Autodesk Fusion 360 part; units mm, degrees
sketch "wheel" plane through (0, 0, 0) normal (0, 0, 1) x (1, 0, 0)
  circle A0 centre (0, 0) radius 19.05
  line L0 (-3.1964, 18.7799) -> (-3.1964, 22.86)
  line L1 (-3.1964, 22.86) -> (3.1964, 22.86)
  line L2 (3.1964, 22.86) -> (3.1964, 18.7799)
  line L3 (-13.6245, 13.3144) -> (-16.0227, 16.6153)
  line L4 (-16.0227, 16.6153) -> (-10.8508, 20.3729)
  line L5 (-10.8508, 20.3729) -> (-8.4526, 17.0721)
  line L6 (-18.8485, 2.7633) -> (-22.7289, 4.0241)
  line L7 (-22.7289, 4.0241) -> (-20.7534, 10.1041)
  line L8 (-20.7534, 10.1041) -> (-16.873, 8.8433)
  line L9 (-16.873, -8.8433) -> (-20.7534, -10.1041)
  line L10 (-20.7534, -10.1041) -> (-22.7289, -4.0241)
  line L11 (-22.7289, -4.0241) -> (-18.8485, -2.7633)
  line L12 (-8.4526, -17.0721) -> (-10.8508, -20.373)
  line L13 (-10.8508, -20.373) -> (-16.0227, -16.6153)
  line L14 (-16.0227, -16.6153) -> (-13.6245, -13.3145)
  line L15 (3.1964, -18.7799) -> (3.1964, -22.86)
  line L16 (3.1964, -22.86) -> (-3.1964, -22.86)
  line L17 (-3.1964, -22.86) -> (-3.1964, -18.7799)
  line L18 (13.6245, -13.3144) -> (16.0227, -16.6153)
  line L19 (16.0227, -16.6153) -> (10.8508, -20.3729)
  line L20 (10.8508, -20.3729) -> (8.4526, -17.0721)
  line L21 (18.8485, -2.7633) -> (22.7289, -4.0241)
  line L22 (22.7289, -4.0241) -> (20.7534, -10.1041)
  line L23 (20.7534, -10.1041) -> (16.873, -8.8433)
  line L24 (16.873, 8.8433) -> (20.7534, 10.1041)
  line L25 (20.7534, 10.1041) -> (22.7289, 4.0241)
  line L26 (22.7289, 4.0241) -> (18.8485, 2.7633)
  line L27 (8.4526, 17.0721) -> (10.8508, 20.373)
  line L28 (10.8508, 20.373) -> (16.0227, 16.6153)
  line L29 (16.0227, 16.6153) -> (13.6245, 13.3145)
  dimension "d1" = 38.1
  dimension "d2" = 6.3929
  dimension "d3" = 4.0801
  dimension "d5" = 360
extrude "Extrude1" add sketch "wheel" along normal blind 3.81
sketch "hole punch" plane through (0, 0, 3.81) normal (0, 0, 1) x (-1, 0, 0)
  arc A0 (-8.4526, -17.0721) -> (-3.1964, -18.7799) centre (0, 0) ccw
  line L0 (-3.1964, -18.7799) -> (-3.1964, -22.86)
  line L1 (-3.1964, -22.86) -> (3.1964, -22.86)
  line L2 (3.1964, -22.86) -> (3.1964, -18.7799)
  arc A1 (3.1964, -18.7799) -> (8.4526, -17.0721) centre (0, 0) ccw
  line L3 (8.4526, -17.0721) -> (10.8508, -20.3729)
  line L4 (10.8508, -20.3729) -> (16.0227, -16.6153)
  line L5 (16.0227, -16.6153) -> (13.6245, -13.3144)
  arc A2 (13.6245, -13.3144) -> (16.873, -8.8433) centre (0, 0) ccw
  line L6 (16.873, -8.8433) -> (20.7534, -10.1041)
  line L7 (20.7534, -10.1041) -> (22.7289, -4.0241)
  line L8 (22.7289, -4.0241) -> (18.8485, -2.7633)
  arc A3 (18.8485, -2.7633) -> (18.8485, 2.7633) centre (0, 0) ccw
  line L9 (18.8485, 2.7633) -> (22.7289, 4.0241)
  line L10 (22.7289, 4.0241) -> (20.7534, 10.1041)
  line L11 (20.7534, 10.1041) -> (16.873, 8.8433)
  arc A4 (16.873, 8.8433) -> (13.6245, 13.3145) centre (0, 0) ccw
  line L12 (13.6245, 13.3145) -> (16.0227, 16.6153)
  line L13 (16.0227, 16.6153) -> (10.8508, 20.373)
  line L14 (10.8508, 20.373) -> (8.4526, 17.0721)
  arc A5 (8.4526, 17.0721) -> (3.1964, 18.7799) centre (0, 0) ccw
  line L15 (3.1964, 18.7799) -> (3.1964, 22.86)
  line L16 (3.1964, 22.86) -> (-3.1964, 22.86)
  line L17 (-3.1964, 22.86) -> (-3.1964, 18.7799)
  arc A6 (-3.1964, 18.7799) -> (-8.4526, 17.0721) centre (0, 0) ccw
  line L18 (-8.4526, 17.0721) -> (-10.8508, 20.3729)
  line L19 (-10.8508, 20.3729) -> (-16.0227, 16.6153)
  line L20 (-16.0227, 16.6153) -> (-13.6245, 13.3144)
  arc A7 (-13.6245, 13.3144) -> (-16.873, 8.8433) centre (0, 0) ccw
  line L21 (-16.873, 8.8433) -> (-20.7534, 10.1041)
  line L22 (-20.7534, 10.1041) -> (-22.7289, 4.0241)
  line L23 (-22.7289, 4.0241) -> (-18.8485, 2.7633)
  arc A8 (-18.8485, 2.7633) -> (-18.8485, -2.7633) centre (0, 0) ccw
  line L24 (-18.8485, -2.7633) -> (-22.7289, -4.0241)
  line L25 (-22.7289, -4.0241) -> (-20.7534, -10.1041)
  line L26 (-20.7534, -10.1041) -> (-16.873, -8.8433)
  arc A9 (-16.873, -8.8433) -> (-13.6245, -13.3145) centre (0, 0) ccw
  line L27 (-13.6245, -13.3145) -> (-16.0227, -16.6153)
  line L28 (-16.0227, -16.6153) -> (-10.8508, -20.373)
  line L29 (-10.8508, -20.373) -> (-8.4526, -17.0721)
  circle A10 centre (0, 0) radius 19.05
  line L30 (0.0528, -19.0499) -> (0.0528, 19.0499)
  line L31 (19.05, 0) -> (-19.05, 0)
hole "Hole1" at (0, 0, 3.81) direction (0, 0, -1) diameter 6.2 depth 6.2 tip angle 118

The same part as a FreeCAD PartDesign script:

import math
import FreeCAD as App
import Part
import Sketcher
from FreeCAD import Vector
Q = App.Units.Quantity

doc = App.newDocument("Part")
body = doc.addObject("PartDesign::Body", "Body")

sketch1 = doc.addObject("Sketcher::SketchObject", "Sketch")
body.addObject(sketch1)
sketch1.AttachmentSupport = (doc.XY_Plane, [""])
sketch1.MapMode = "FlatFace"
sketch1.addGeometry([
    Part.ArcOfCircle(Part.Circle(Vector(0, 0, 0), Vector(0, 0, 1), 19.1), math.radians(-8.34), math.radians(8.34)),
    Part.LineSegment(Vector(18.8, 2.8, 0), Vector(22.7, 4, 0)),
    Part.LineSegment(Vector(22.7, 4, 0), Vector(20.8, 10.1, 0)),
    Part.LineSegment(Vector(20.8, 10.1, 0), Vector(16.9, 8.8, 0)),
    Part.ArcOfCircle(Part.Circle(Vector(0, 0, 0), Vector(0, 0, 1), 19.1), math.radians(27.66), math.radians(44.34)),
    Part.LineSegment(Vector(13.6, 13.3, 0), Vector(16, 16.6, 0)),
    Part.LineSegment(Vector(16, 16.6, 0), Vector(10.9, 20.4, 0)),
    Part.LineSegment(Vector(10.9, 20.4, 0), Vector(8.5, 17.1, 0)),
    Part.ArcOfCircle(Part.Circle(Vector(0, 0, 0), Vector(0, 0, 1), 19.1), math.radians(63.66), math.radians(80.34)),
    Part.LineSegment(Vector(3.2, 18.8, 0), Vector(3.2, 22.9, 0)),
    Part.LineSegment(Vector(3.2, 22.9, 0), Vector(-3.2, 22.9, 0)),
    Part.LineSegment(Vector(-3.2, 22.9, 0), Vector(-3.2, 18.8, 0)),
    Part.ArcOfCircle(Part.Circle(Vector(0, 0, 0), Vector(0, 0, 1), 19.1), math.radians(99.66), math.radians(116.34)),
    Part.LineSegment(Vector(-8.5, 17.1, 0), Vector(-10.9, 20.4, 0)),
    Part.LineSegment(Vector(-10.9, 20.4, 0), Vector(-16, 16.6, 0)),
    Part.LineSegment(Vector(-16, 16.6, 0), Vector(-13.6, 13.3, 0)),
    Part.ArcOfCircle(Part.Circle(Vector(0, 0, 0), Vector(0, 0, 1), 19.1), math.radians(135.66), math.radians(152.34)),
    Part.LineSegment(Vector(-16.9, 8.8, 0), Vector(-20.8, 10.1, 0)),
    Part.LineSegment(Vector(-20.8, 10.1, 0), Vector(-22.7, 4, 0)),
    Part.LineSegment(Vector(-22.7, 4, 0), Vector(-18.8, 2.8, 0)),
    Part.ArcOfCircle(Part.Circle(Vector(0, 0, 0), Vector(0, 0, 1), 19.1), math.radians(171.66), math.radians(188.34)),
    Part.LineSegment(Vector(-18.8, -2.8, 0), Vector(-22.7, -4, 0)),
    Part.LineSegment(Vector(-22.7, -4, 0), Vector(-20.8, -10.1, 0)),
    Part.LineSegment(Vector(-20.8, -10.1, 0), Vector(-16.9, -8.8, 0)),
    Part.ArcOfCircle(Part.Circle(Vector(0, 0, 0), Vector(0, 0, 1), 19.1), math.radians(-152.34), math.radians(-135.66)),
    Part.LineSegment(Vector(-13.6, -13.3, 0), Vector(-16, -16.6, 0)),
    Part.LineSegment(Vector(-16, -16.6, 0), Vector(-10.9, -20.4, 0)),
    Part.LineSegment(Vector(-10.9, -20.4, 0), Vector(-8.5, -17.1, 0)),
    Part.ArcOfCircle(Part.Circle(Vector(0, 0, 0), Vector(0, 0, 1), 19.1), math.radians(-116.34), math.radians(-99.66)),
    Part.LineSegment(Vector(-3.2, -18.8, 0), Vector(-3.2, -22.9, 0)),
    Part.LineSegment(Vector(-3.2, -22.9, 0), Vector(3.2, -22.9, 0)),
    Part.LineSegment(Vector(3.2, -22.9, 0), Vector(3.2, -18.8, 0)),
    Part.ArcOfCircle(Part.Circle(Vector(0, 0, 0), Vector(0, 0, 1), 19.1), math.radians(-80.34), math.radians(-63.66)),
    Part.LineSegment(Vector(8.5, -17.1, 0), Vector(10.9, -20.4, 0)),
    Part.LineSegment(Vector(10.9, -20.4, 0), Vector(16, -16.6, 0)),
    Part.LineSegment(Vector(16, -16.6, 0), Vector(13.6, -13.3, 0)),
    Part.ArcOfCircle(Part.Circle(Vector(0, 0, 0), Vector(0, 0, 1), 19.1), math.radians(-44.34), math.radians(-27.66)),
    Part.LineSegment(Vector(16.9, -8.8, 0), Vector(20.8, -10.1, 0)),
    Part.LineSegment(Vector(20.8, -10.1, 0), Vector(22.7, -4, 0)),
    Part.LineSegment(Vector(22.7, -4, 0), Vector(18.8, -2.8, 0)),
], False)
sketch1.addConstraint([
    Sketcher.Constraint("Coincident", 0, 2, 1, 1),
    Sketcher.Constraint("Coincident", 1, 2, 2, 1),
    Sketcher.Constraint("Coincident", 2, 2, 3, 1),
    Sketcher.Constraint("Coincident", 3, 2, 4, 1),
    Sketcher.Constraint("Coincident", 4, 2, 5, 1),
    Sketcher.Constraint("Coincident", 5, 2, 6, 1),
    Sketcher.Constraint("Coincident", 6, 2, 7, 1),
    Sketcher.Constraint("Coincident", 7, 2, 8, 1),
    Sketcher.Constraint("Coincident", 8, 2, 9, 1),
    Sketcher.Constraint("Coincident", 9, 2, 10, 1),
    Sketcher.Constraint("Coincident", 10, 2, 11, 1),
    Sketcher.Constraint("Coincident", 11, 2, 12, 1),
    Sketcher.Constraint("Coincident", 12, 2, 13, 1),
    Sketcher.Constraint("Coincident", 13, 2, 14, 1),
    Sketcher.Constraint("Coincident", 14, 2, 15, 1),
    Sketcher.Constraint("Coincident", 15, 2, 16, 1),
    Sketcher.Constraint("Coincident", 16, 2, 17, 1),
    Sketcher.Constraint("Coincident", 17, 2, 18, 1),
    Sketcher.Constraint("Coincident", 18, 2, 19, 1),
    Sketcher.Constraint("Coincident", 19, 2, 20, 1),
    Sketcher.Constraint("Coincident", 20, 2, 21, 1),
    Sketcher.Constraint("Coincident", 21, 2, 22, 1),
    Sketcher.Constraint("Coincident", 22, 2, 23, 1),
    Sketcher.Constraint("Coincident", 23, 2, 24, 1),
    Sketcher.Constraint("Coincident", 24, 2, 25, 1),
    Sketcher.Constraint("Coincident", 25, 2, 26, 1),
    Sketcher.Constraint("Coincident", 26, 2, 27, 1),
    Sketcher.Constraint("Coincident", 27, 2, 28, 1),
    Sketcher.Constraint("Coincident", 28, 2, 29, 1),
    Sketcher.Constraint("Coincident", 29, 2, 30, 1),
    Sketcher.Constraint("Coincident", 30, 2, 31, 1),
    Sketcher.Constraint("Coincident", 31, 2, 32, 1),
    Sketcher.Constraint("Coincident", 32, 2, 33, 1),
    Sketcher.Constraint("Coincident", 33, 2, 34, 1),
    Sketcher.Constraint("Coincident", 34, 2, 35, 1),
    Sketcher.Constraint("Coincident", 35, 2, 36, 1),
    Sketcher.Constraint("Coincident", 36, 2, 37, 1),
    Sketcher.Constraint("Coincident", 37, 2, 38, 1),
    Sketcher.Constraint("Coincident", 38, 2, 39, 1),
    Sketcher.Constraint("Coincident", 39, 2, 0, 1),
    Sketcher.Constraint("Vertical", 9),
    Sketcher.Constraint("Horizontal", 10),
    Sketcher.Constraint("Vertical", 11),
    Sketcher.Constraint("Vertical", 29),
    Sketcher.Constraint("Horizontal", 30),
    Sketcher.Constraint("Vertical", 31),
    Sketcher.Constraint("Coincident", 0, 3, -1, 1),
    Sketcher.Constraint("Coincident", 4, 3, -1, 1),
    Sketcher.Constraint("Coincident", 8, 3, -1, 1),
    Sketcher.Constraint("Coincident", 12, 3, -1, 1),
    Sketcher.Constraint("Coincident", 16, 3, -1, 1),
    Sketcher.Constraint("Coincident", 20, 3, -1, 1),
    Sketcher.Constraint("Coincident", 24, 3, -1, 1),
    Sketcher.Constraint("Coincident", 28, 3, -1, 1),
    Sketcher.Constraint("Coincident", 32, 3, -1, 1),
    Sketcher.Constraint("Coincident", 36, 3, -1, 1),
    Sketcher.Constraint("Equal", 0, 4),
    Sketcher.Constraint("Equal", 4, 8),
    Sketcher.Constraint("Equal", 8, 12),
    Sketcher.Constraint("Equal", 12, 16),
    Sketcher.Constraint("Equal", 16, 20),
    Sketcher.Constraint("Equal", 20, 24),
    Sketcher.Constraint("Equal", 24, 28),
    Sketcher.Constraint("Equal", 28, 32),
    Sketcher.Constraint("Equal", 32, 36),
    Sketcher.Constraint("Symmetric", 1, 2, 21, 2, -1, 1),
    Sketcher.Constraint("Symmetric", 2, 2, 22, 2, -1, 1),
    Sketcher.Constraint("Symmetric", 5, 2, 25, 2, -1, 1),
    Sketcher.Constraint("Symmetric", 6, 2, 26, 2, -1, 1),
    Sketcher.Constraint("Symmetric", 9, 2, 29, 2, -1, 1),
    Sketcher.Constraint("Symmetric", 13, 2, 33, 2, -1, 1),
    Sketcher.Constraint("Symmetric", 14, 2, 34, 2, -1, 1),
    Sketcher.Constraint("Symmetric", 17, 2, 37, 2, -1, 1),
    Sketcher.Constraint("Symmetric", 18, 2, 38, 2, -1, 1),
    Sketcher.Constraint("Symmetric", 6, 2, 13, 2, -2),
    Sketcher.Constraint("Symmetric", 5, 2, 14, 2, -2),
    Sketcher.Constraint("Symmetric", 2, 2, 17, 2, -2),
    Sketcher.Constraint("Symmetric", 1, 2, 18, 2, -2),
    Sketcher.Constraint("Perpendicular", 1, 2),
    Sketcher.Constraint("Perpendicular", 2, 3),
    Sketcher.Constraint("Perpendicular", 5, 6),
    Sketcher.Constraint("Perpendicular", 6, 7),
    Sketcher.Constraint("Perpendicular", 13, 14),
    Sketcher.Constraint("Perpendicular", 14, 15),
    Sketcher.Constraint("Perpendicular", 17, 18),
    Sketcher.Constraint("Perpendicular", 18, 19),
    Sketcher.Constraint("Parallel", 3, 21),
    Sketcher.Constraint("Perpendicular", 22, 23),
    Sketcher.Constraint("Parallel", 7, 25),
    Sketcher.Constraint("Perpendicular", 26, 27),
    Sketcher.Constraint("Parallel", 15, 33),
    Sketcher.Constraint("Perpendicular", 34, 35),
    Sketcher.Constraint("Parallel", 19, 37),
    Sketcher.Constraint("Perpendicular", 38, 39),
    Sketcher.Constraint("Horizontal", 8, 2, 11, 2),
    Sketcher.Constraint("Horizontal", 28, 2, 31, 2),
    Sketcher.Constraint("Equal", 1, 3),
    Sketcher.Constraint("Equal", 3, 5),
    Sketcher.Constraint("Equal", 2, 6),
    Sketcher.Constraint("Equal", 5, 7),
    Sketcher.Constraint("Radius", 0, Q("0.75 in")),
    Sketcher.Constraint("Angle", 1, Q("17.9998 deg")),
    Sketcher.Constraint("Angle", 5, Q("53.9997 deg")),
    Sketcher.Constraint("Distance", 2, Q("0.2517 in")),
    Sketcher.Constraint("DistanceX", 10, 2, 10, 1, Q("6.3928 mm")),
    Sketcher.Constraint("DistanceY", 9, 1, 9, 2, Q("4.08 mm")),
    Sketcher.Constraint("Distance", 1, Q("4.08 mm")),
])
pad1 = doc.addObject("PartDesign::Pad", "Pad")
body.addObject(pad1)
pad1.Profile = sketch1
pad1.Length = Q("0.15 in")

sketch2 = doc.addObject("Sketcher::SketchObject", "Sketch001")
body.addObject(sketch2)
sketch2.AttachmentSupport = (doc.XY_Plane, [""])
sketch2.MapMode = "FlatFace"
sketch2.AttachmentOffset = App.Placement(Vector(0, 0, 0.15 * 25.4), App.Rotation())
sketch2.addGeometry(Part.Circle(Vector(0, 0, 0), Vector(0, 0, 1), 3.1), False)
sketch2.addConstraint([
    Sketcher.Constraint("Coincident", 0, 3, -1, 1),
    Sketcher.Constraint("Diameter", 0, Q("0.2441 in")),
])
doc.recompute()
hole = doc.addObject("PartDesign::Hole", "Hole")
body.addObject(hole)
hole.Profile = sketch2
hole.ThreadType = "None"
hole.Diameter = Q("0.2440945 in")
hole.DepthType = "Dimension"
hole.Depth = Q("0.2440945 in")
hole.DrillPoint = "Angled"
hole.DrillPointAngle = 118

doc.recompute()
